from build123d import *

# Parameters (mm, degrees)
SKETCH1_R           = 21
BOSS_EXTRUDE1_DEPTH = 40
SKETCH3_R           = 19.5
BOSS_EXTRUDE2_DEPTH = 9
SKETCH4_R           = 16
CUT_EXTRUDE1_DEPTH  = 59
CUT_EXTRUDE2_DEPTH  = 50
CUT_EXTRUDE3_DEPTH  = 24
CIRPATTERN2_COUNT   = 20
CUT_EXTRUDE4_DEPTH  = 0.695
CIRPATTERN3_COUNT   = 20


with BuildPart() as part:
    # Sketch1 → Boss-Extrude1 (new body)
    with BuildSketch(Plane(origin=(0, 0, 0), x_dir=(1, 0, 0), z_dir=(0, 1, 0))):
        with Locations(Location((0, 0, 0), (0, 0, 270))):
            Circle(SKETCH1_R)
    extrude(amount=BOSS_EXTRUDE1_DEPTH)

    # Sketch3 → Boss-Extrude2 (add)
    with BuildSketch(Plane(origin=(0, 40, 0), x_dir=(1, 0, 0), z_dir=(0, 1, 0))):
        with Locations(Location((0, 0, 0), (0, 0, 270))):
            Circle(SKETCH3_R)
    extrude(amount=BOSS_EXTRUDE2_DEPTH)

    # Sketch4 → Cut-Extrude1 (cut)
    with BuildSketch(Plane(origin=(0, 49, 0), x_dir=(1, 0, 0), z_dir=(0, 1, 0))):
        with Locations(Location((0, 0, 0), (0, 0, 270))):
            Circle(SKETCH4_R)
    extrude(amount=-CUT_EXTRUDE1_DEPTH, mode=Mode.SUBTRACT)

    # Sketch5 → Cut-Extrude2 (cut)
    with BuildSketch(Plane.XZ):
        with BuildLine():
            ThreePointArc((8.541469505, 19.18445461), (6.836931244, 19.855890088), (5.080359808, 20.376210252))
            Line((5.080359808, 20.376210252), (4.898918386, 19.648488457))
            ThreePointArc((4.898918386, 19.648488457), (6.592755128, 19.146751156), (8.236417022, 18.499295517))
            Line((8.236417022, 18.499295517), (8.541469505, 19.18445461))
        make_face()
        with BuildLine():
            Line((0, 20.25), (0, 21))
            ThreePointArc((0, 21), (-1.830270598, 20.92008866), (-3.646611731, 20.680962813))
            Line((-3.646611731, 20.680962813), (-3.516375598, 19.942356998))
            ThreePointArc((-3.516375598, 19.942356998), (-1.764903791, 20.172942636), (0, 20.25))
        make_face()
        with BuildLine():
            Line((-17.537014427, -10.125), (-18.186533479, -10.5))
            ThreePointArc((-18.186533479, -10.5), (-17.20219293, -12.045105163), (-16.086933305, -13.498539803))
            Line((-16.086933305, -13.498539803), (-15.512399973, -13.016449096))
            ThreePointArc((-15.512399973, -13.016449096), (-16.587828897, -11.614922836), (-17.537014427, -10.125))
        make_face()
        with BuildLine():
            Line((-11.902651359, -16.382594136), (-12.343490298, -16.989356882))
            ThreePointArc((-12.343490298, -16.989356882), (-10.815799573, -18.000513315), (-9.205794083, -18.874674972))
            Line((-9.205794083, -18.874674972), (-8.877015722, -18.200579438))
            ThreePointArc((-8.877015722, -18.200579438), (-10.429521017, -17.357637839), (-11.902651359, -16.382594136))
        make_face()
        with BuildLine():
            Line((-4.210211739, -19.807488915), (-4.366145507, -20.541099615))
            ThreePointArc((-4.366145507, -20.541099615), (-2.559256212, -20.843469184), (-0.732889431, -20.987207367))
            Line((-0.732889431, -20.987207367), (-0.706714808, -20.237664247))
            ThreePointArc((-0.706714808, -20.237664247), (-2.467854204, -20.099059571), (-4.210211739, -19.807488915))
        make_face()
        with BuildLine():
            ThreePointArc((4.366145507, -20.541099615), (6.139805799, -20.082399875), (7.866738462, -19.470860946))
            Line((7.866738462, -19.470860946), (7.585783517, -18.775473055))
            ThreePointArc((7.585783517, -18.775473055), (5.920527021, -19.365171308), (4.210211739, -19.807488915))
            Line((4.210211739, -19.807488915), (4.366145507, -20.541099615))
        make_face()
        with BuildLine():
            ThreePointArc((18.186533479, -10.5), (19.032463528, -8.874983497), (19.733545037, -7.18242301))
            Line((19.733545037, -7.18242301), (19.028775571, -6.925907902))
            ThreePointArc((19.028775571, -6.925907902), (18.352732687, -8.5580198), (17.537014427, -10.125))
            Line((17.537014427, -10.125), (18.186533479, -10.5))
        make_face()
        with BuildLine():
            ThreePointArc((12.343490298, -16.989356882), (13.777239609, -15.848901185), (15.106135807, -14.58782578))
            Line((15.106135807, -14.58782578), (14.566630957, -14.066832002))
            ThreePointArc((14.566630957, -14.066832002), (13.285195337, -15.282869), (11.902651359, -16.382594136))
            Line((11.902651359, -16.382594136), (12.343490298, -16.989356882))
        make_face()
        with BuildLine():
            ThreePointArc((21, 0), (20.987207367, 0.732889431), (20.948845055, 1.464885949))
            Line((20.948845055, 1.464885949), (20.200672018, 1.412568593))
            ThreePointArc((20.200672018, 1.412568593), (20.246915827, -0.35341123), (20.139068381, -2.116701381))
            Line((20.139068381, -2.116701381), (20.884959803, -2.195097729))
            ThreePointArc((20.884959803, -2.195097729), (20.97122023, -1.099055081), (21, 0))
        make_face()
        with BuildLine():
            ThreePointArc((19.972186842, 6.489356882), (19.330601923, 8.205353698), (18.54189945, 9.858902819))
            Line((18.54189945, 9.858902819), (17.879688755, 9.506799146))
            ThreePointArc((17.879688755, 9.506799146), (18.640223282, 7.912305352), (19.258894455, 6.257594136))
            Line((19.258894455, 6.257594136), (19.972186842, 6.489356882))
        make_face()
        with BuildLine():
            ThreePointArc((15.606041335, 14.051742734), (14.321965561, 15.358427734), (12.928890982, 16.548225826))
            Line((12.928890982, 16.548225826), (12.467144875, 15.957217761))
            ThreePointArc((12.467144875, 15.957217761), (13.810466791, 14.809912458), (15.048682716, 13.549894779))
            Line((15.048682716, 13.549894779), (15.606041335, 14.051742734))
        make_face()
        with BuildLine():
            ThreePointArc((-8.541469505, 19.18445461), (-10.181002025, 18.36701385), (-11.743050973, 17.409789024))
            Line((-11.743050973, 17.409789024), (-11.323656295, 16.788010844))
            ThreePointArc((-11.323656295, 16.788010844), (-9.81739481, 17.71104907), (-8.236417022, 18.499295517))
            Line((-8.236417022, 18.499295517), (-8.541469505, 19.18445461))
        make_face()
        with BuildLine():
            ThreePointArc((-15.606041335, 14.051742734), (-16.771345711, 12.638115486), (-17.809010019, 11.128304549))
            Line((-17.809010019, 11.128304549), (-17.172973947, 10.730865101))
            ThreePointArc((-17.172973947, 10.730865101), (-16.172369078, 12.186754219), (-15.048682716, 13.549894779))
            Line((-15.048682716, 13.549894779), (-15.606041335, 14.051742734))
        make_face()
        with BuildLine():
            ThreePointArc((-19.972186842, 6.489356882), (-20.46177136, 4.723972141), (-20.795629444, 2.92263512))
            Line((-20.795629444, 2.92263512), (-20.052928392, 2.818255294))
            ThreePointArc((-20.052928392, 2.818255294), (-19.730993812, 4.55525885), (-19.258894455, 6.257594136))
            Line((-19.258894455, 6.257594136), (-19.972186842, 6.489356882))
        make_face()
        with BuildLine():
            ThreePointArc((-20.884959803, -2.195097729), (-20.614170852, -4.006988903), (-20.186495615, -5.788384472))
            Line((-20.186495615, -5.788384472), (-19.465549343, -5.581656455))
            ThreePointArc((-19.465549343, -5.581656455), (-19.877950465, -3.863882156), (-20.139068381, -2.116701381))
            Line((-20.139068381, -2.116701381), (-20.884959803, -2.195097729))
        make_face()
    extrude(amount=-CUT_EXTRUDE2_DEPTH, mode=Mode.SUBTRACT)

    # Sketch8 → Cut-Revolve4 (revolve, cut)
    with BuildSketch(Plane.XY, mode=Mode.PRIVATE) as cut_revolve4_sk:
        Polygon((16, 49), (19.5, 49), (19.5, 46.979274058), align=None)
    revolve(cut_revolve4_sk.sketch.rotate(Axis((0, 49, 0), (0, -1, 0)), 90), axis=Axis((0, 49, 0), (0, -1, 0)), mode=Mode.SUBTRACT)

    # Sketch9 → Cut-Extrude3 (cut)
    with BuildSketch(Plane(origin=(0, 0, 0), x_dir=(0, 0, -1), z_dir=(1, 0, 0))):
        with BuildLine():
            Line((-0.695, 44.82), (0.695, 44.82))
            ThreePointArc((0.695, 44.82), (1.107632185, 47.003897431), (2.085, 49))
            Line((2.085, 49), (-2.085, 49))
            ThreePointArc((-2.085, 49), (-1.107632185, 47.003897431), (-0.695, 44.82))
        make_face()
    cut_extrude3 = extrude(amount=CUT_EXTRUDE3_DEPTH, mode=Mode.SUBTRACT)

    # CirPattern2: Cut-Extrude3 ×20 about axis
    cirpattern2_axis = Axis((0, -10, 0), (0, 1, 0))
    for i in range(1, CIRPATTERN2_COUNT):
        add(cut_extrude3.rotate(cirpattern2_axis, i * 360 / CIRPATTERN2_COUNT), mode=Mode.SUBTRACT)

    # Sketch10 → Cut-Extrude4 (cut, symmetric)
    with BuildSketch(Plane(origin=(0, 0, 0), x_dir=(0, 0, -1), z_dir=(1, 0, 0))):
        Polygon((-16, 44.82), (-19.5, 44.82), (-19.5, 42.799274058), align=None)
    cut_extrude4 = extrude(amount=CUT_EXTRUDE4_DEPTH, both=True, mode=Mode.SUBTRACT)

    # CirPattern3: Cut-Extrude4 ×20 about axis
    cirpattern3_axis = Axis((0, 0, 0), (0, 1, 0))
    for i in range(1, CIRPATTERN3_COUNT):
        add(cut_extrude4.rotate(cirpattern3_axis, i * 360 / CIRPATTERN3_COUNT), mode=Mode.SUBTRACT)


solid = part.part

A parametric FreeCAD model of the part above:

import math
import FreeCAD as App
import Part
import Sketcher
from FreeCAD import Vector
Q = App.Units.Quantity


def add_polygon(sketch, points):
    """Adds a closed chain of lines whose ends are joined by coincident constraints."""
    first, n = sketch.GeometryCount, len(points)
    for a, b in zip(points, points[1:] + points[:1]):
        sketch.addGeometry(Part.LineSegment(App.Vector(*a, 0), App.Vector(*b, 0)), False)
    for i in range(n):
        sketch.addConstraint(Sketcher.Constraint("Coincident", first + i, 2, first + (i + 1) % n, 1))

doc = App.newDocument("Part")
body = doc.addObject("PartDesign::Body", "Body")

sketch1 = doc.addObject("Sketcher::SketchObject", "Sketch")
body.addObject(sketch1)
sketch1.AttachmentSupport = (doc.XZ_Plane, [""])
sketch1.MapMode = "FlatFace"
sketch1.addGeometry(Part.Circle(Vector(0, 0, 0), Vector(0, 0, 1), 21), False)
sketch1.addConstraint(Sketcher.Constraint("Coincident", 0, 3, -1, 1))
sketch1.addConstraint(Sketcher.Constraint("Diameter", 0, 42.0))
pad1 = doc.addObject("PartDesign::Pad", "Pad")
body.addObject(pad1)
pad1.Profile = sketch1
pad1.Length = 40
pad1.Reversed = True

sketch2 = doc.addObject("Sketcher::SketchObject", "Sketch001")
body.addObject(sketch2)
sketch2.AttachmentSupport = (doc.XZ_Plane, [""])
sketch2.MapMode = "FlatFace"
sketch2.AttachmentOffset = App.Placement(Vector(0, 0, -40), App.Rotation())
sketch2.addGeometry(Part.Circle(Vector(0, 0, 0), Vector(0, 0, 1), 19.5), False)
sketch2.addConstraint(Sketcher.Constraint("Coincident", 0, 3, -1, 1))
sketch2.addConstraint(Sketcher.Constraint("Diameter", 0, 39.0))
pad2 = doc.addObject("PartDesign::Pad", "Pad001")
body.addObject(pad2)
pad2.Profile = sketch2
pad2.Length = 9
pad2.Reversed = True

sketch3 = doc.addObject("Sketcher::SketchObject", "Sketch002")
body.addObject(sketch3)
sketch3.AttachmentSupport = (doc.XZ_Plane, [""])
sketch3.MapMode = "FlatFace"
sketch3.AttachmentOffset = App.Placement(Vector(0, 0, -49), App.Rotation())
sketch3.addGeometry(Part.Circle(Vector(0, 0, 0), Vector(0, 0, 1), 16), False)
sketch3.addConstraint(Sketcher.Constraint("Coincident", 0, 3, -1, 1))
sketch3.addConstraint(Sketcher.Constraint("Diameter", 0, 32.0))
pocket1 = doc.addObject("PartDesign::Pocket", "Pocket")
body.addObject(pocket1)
pocket1.Profile = sketch3
pocket1.Length = 59
pocket1.Reversed = True

sketch4 = doc.addObject("Sketcher::SketchObject", "Sketch003")
body.addObject(sketch4)
sketch4.AttachmentSupport = (doc.XZ_Plane, [""])
sketch4.MapMode = "FlatFace"
sketch4.addGeometry(Part.ArcOfCircle(Part.Circle(Vector(0, 0, 0), Vector(0, 0, 1), 21), math.radians(66), math.radians(76)), False)
sketch4.addGeometry(Part.LineSegment(Vector(5.08036, 20.37621, 0), Vector(4.898918, 19.648488, 0)), False)
sketch4.addGeometry(Part.ArcOfCircle(Part.Circle(Vector(0, 0, 0), Vector(0, 0, 1), 20.25), math.radians(66), math.radians(76)), False)
sketch4.addGeometry(Part.LineSegment(Vector(8.236417, 18.499296, 0), Vector(8.54147, 19.184455, 0)), False)
sketch4.addGeometry(Part.LineSegment(Vector(0, 20.25, 0), Vector(0, 21, 0)), False)
sketch4.addGeometry(Part.ArcOfCircle(Part.Circle(Vector(0, 0, 0), Vector(0, 0, 1), 21), math.radians(90), math.radians(100)), False)
sketch4.addGeometry(Part.LineSegment(Vector(-3.646612, 20.680963, 0), Vector(-3.516376, 19.942357, 0)), False)
sketch4.addGeometry(Part.ArcOfCircle(Part.Circle(Vector(0, 0, 0), Vector(0, 0, 1), 20.25), math.radians(90), math.radians(100)), False)
sketch4.addGeometry(Part.LineSegment(Vector(-17.537014, -10.125, 0), Vector(-18.186533, -10.5, 0)), False)
sketch4.addGeometry(Part.ArcOfCircle(Part.Circle(Vector(0, 0, 0), Vector(0, 0, 1), 21), math.radians(-150), math.radians(-140)), False)
sketch4.addGeometry(Part.LineSegment(Vector(-16.086933, -13.49854, 0), Vector(-15.5124, -13.016449, 0)), False)
sketch4.addGeometry(Part.ArcOfCircle(Part.Circle(Vector(0, 0, 0), Vector(0, 0, 1), 20.25), math.radians(-150), math.radians(-140)), False)
sketch4.addGeometry(Part.LineSegment(Vector(-11.902651, -16.382594, 0), Vector(-12.34349, -16.989357, 0)), False)
sketch4.addGeometry(Part.ArcOfCircle(Part.Circle(Vector(0, 0, 0), Vector(0, 0, 1), 21), math.radians(-126), math.radians(-116)), False)
sketch4.addGeometry(Part.LineSegment(Vector(-9.205794, -18.874675, 0), Vector(-8.877016, -18.200579, 0)), False)
sketch4.addGeometry(Part.ArcOfCircle(Part.Circle(Vector(0, 0, 0), Vector(0, 0, 1), 20.25), math.radians(-126), math.radians(-116)), False)
sketch4.addGeometry(Part.LineSegment(Vector(-4.210212, -19.807489, 0), Vector(-4.366146, -20.5411, 0)), False)
sketch4.addGeometry(Part.ArcOfCircle(Part.Circle(Vector(0, 0, 0), Vector(0, 0, 1), 21), math.radians(-102), math.radians(-92)), False)
sketch4.addGeometry(Part.LineSegment(Vector(-0.732889, -20.987207, 0), Vector(-0.706715, -20.237664, 0)), False)
sketch4.addGeometry(Part.ArcOfCircle(Part.Circle(Vector(0, 0, 0), Vector(0, 0, 1), 20.25), math.radians(-102), math.radians(-92)), False)
sketch4.addGeometry(Part.ArcOfCircle(Part.Circle(Vector(0, 0, 0), Vector(0, 0, 1), 21), math.radians(-78), math.radians(-68)), False)
sketch4.addGeometry(Part.LineSegment(Vector(7.866738, -19.470861, 0), Vector(7.585784, -18.775473, 0)), False)
sketch4.addGeometry(Part.ArcOfCircle(Part.Circle(Vector(0, 0, 0), Vector(0, 0, 1), 20.25), math.radians(-78), math.radians(-68)), False)
sketch4.addGeometry(Part.LineSegment(Vector(4.210212, -19.807489, 0), Vector(4.366146, -20.5411, 0)), False)
sketch4.addGeometry(Part.ArcOfCircle(Part.Circle(Vector(0, 0, 0), Vector(0, 0, 1), 21), math.radians(-30), math.radians(-20)), False)
sketch4.addGeometry(Part.LineSegment(Vector(19.733545, -7.182423, 0), Vector(19.028776, -6.925908, 0)), False)
sketch4.addGeometry(Part.ArcOfCircle(Part.Circle(Vector(0, 0, 0), Vector(0, 0, 1), 20.25), math.radians(-30), math.radians(-20)), False)
sketch4.addGeometry(Part.LineSegment(Vector(17.537014, -10.125, 0), Vector(18.186533, -10.5, 0)), False)
sketch4.addGeometry(Part.ArcOfCircle(Part.Circle(Vector(0, 0, 0), Vector(0, 0, 1), 21), math.radians(-54), math.radians(-44)), False)
sketch4.addGeometry(Part.LineSegment(Vector(15.106136, -14.587826, 0), Vector(14.566631, -14.066832, 0)), False)
sketch4.addGeometry(Part.ArcOfCircle(Part.Circle(Vector(0, 0, 0), Vector(0, 0, 1), 20.25), math.radians(-54), math.radians(-44)), False)
sketch4.addGeometry(Part.LineSegment(Vector(11.902651, -16.382594, 0), Vector(12.34349, -16.989357, 0)), False)
sketch4.addGeometry(Part.ArcOfCircle(Part.Circle(Vector(0, 0, 0), Vector(0, 0, 1), 21), math.radians(0), math.radians(4)), False)
sketch4.addGeometry(Part.LineSegment(Vector(20.948845, 1.464886, 0), Vector(20.200672, 1.412569, 0)), False)
sketch4.addGeometry(Part.ArcOfCircle(Part.Circle(Vector(0, 0, 0), Vector(0, 0, 1), 20.25), math.radians(-6), math.radians(4)), False)
sketch4.addGeometry(Part.LineSegment(Vector(20.139068, -2.116701, 0), Vector(20.88496, -2.195098, 0)), False)
sketch4.addGeometry(Part.ArcOfCircle(Part.Circle(Vector(0, 0, 0), Vector(0, 0, 1), 21), math.radians(-6), math.radians(0)), False)
sketch4.addGeometry(Part.ArcOfCircle(Part.Circle(Vector(0, 0, 0), Vector(0, 0, 1), 21), math.radians(18), math.radians(28)), False)
sketch4.addGeometry(Part.LineSegment(Vector(18.541899, 9.858903, 0), Vector(17.879689, 9.506799, 0)), False)
sketch4.addGeometry(Part.ArcOfCircle(Part.Circle(Vector(0, 0, 0), Vector(0, 0, 1), 20.25), math.radians(18), math.radians(28)), False)
sketch4.addGeometry(Part.LineSegment(Vector(19.258894, 6.257594, 0), Vector(19.972187, 6.489357, 0)), False)
sketch4.addGeometry(Part.ArcOfCircle(Part.Circle(Vector(0, 0, 0), Vector(0, 0, 1), 21), math.radians(42), math.radians(52)), False)
sketch4.addGeometry(Part.LineSegment(Vector(12.928891, 16.548226, 0), Vector(12.467145, 15.957218, 0)), False)
sketch4.addGeometry(Part.ArcOfCircle(Part.Circle(Vector(0, 0, 0), Vector(0, 0, 1), 20.25), math.radians(42), math.radians(52)), False)
sketch4.addGeometry(Part.LineSegment(Vector(15.048683, 13.549895, 0), Vector(15.606041, 14.051743, 0)), False)
sketch4.addGeometry(Part.ArcOfCircle(Part.Circle(Vector(0, 0, 0), Vector(0, 0, 1), 21), math.radians(114), math.radians(124)), False)
sketch4.addGeometry(Part.LineSegment(Vector(-11.743051, 17.409789, 0), Vector(-11.323656, 16.788011, 0)), False)
sketch4.addGeometry(Part.ArcOfCircle(Part.Circle(Vector(0, 0, 0), Vector(0, 0, 1), 20.25), math.radians(114), math.radians(124)), False)
sketch4.addGeometry(Part.LineSegment(Vector(-8.236417, 18.499296, 0), Vector(-8.54147, 19.184455, 0)), False)
sketch4.addGeometry(Part.ArcOfCircle(Part.Circle(Vector(0, 0, 0), Vector(0, 0, 1), 21), math.radians(138), math.radians(148)), False)
sketch4.addGeometry(Part.LineSegment(Vector(-17.80901, 11.128305, 0), Vector(-17.172974, 10.730865, 0)), False)
sketch4.addGeometry(Part.ArcOfCircle(Part.Circle(Vector(0, 0, 0), Vector(0, 0, 1), 20.25), math.radians(138), math.radians(148)), False)
sketch4.addGeometry(Part.LineSegment(Vector(-15.048683, 13.549895, 0), Vector(-15.606041, 14.051743, 0)), False)
sketch4.addGeometry(Part.ArcOfCircle(Part.Circle(Vector(0, 0, 0), Vector(0, 0, 1), 21), math.radians(162), math.radians(172)), False)
sketch4.addGeometry(Part.LineSegment(Vector(-20.795629, 2.922635, 0), Vector(-20.052928, 2.818255, 0)), False)
sketch4.addGeometry(Part.ArcOfCircle(Part.Circle(Vector(0, 0, 0), Vector(0, 0, 1), 20.25), math.radians(162), math.radians(172)), False)
sketch4.addGeometry(Part.LineSegment(Vector(-19.258894, 6.257594, 0), Vector(-19.972187, 6.489357, 0)), False)
sketch4.addGeometry(Part.ArcOfCircle(Part.Circle(Vector(0, 0, 0), Vector(0, 0, 1), 21), math.radians(-174), math.radians(-164)), False)
sketch4.addGeometry(Part.LineSegment(Vector(-20.186496, -5.788384, 0), Vector(-19.465549, -5.581656, 0)), False)
sketch4.addGeometry(Part.ArcOfCircle(Part.Circle(Vector(0, 0, 0), Vector(0, 0, 1), 20.25), math.radians(-174), math.radians(-164)), False)
sketch4.addGeometry(Part.LineSegment(Vector(-20.139068, -2.116701, 0), Vector(-20.88496, -2.195098, 0)), False)
sketch4.addConstraint(Sketcher.Constraint("Coincident", 0, 2, 1, 1))
sketch4.addConstraint(Sketcher.Constraint("Coincident", 1, 2, 2, 2))
sketch4.addConstraint(Sketcher.Constraint("Coincident", 2, 1, 3, 1))
sketch4.addConstraint(Sketcher.Constraint("Coincident", 3, 2, 0, 1))
sketch4.addConstraint(Sketcher.Constraint("Coincident", 4, 2, 5, 1))
sketch4.addConstraint(Sketcher.Constraint("Coincident", 5, 2, 6, 1))
sketch4.addConstraint(Sketcher.Constraint("Coincident", 6, 2, 7, 2))
sketch4.addConstraint(Sketcher.Constraint("Coincident", 7, 1, 4, 1))
sketch4.addConstraint(Sketcher.Constraint("Coincident", 8, 2, 9, 1))
sketch4.addConstraint(Sketcher.Constraint("Coincident", 9, 2, 10, 1))
sketch4.addConstraint(Sketcher.Constraint("Coincident", 10, 2, 11, 2))
sketch4.addConstraint(Sketcher.Constraint("Coincident", 11, 1, 8, 1))
sketch4.addConstraint(Sketcher.Constraint("Coincident", 12, 2, 13, 1))
sketch4.addConstraint(Sketcher.Constraint("Coincident", 13, 2, 14, 1))
sketch4.addConstraint(Sketcher.Constraint("Coincident", 14, 2, 15, 2))
sketch4.addConstraint(Sketcher.Constraint("Coincident", 15, 1, 12, 1))
sketch4.addConstraint(Sketcher.Constraint("Coincident", 16, 2, 17, 1))
sketch4.addConstraint(Sketcher.Constraint("Coincident", 17, 2, 18, 1))
sketch4.addConstraint(Sketcher.Constraint("Coincident", 18, 2, 19, 2))
sketch4.addConstraint(Sketcher.Constraint("Coincident", 19, 1, 16, 1))
sketch4.addConstraint(Sketcher.Constraint("Coincident", 20, 2, 21, 1))
sketch4.addConstraint(Sketcher.Constraint("Coincident", 21, 2, 22, 2))
sketch4.addConstraint(Sketcher.Constraint("Coincident", 22, 1, 23, 1))
sketch4.addConstraint(Sketcher.Constraint("Coincident", 23, 2, 20, 1))
sketch4.addConstraint(Sketcher.Constraint("Coincident", 24, 2, 25, 1))
sketch4.addConstraint(Sketcher.Constraint("Coincident", 25, 2, 26, 2))
sketch4.addConstraint(Sketcher.Constraint("Coincident", 26, 1, 27, 1))
sketch4.addConstraint(Sketcher.Constraint("Coincident", 27, 2, 24, 1))
sketch4.addConstraint(Sketcher.Constraint("Coincident", 28, 2, 29, 1))
sketch4.addConstraint(Sketcher.Constraint("Coincident", 29, 2, 30, 2))
sketch4.addConstraint(Sketcher.Constraint("Coincident", 30, 1, 31, 1))
sketch4.addConstraint(Sketcher.Constraint("Coincident", 31, 2, 28, 1))
sketch4.addConstraint(Sketcher.Constraint("Coincident", 32, 2, 33, 1))
sketch4.addConstraint(Sketcher.Constraint("Coincident", 33, 2, 34, 2))
sketch4.addConstraint(Sketcher.Constraint("Coincident", 34, 1, 35, 1))
sketch4.addConstraint(Sketcher.Constraint("Coincident", 35, 2, 36, 1))
sketch4.addConstraint(Sketcher.Constraint("Tangent", 36, 2, 32, 1))
sketch4.addConstraint(Sketcher.Constraint("Coincident", 37, 2, 38, 1))
sketch4.addConstraint(Sketcher.Constraint("Coincident", 38, 2, 39, 2))
sketch4.addConstraint(Sketcher.Constraint("Coincident", 39, 1, 40, 1))
sketch4.addConstraint(Sketcher.Constraint("Coincident", 40, 2, 37, 1))
sketch4.addConstraint(Sketcher.Constraint("Coincident", 41, 2, 42, 1))
sketch4.addConstraint(Sketcher.Constraint("Coincident", 42, 2, 43, 2))
sketch4.addConstraint(Sketcher.Constraint("Coincident", 43, 1, 44, 1))
sketch4.addConstraint(Sketcher.Constraint("Coincident", 44, 2, 41, 1))
sketch4.addConstraint(Sketcher.Constraint("Coincident", 45, 2, 46, 1))
sketch4.addConstraint(Sketcher.Constraint("Coincident", 46, 2, 47, 2))
sketch4.addConstraint(Sketcher.Constraint("Coincident", 47, 1, 48, 1))
sketch4.addConstraint(Sketcher.Constraint("Coincident", 48, 2, 45, 1))
sketch4.addConstraint(Sketcher.Constraint("Coincident", 49, 2, 50, 1))
sketch4.addConstraint(Sketcher.Constraint("Coincident", 50, 2, 51, 2))
sketch4.addConstraint(Sketcher.Constraint("Coincident", 51, 1, 52, 1))
sketch4.addConstraint(Sketcher.Constraint("Coincident", 52, 2, 49, 1))
sketch4.addConstraint(Sketcher.Constraint("Coincident", 53, 2, 54, 1))
sketch4.addConstraint(Sketcher.Constraint("Coincident", 54, 2, 55, 2))
sketch4.addConstraint(Sketcher.Constraint("Coincident", 55, 1, 56, 1))
sketch4.addConstraint(Sketcher.Constraint("Coincident", 56, 2, 53, 1))
sketch4.addConstraint(Sketcher.Constraint("Coincident", 57, 2, 58, 1))
sketch4.addConstraint(Sketcher.Constraint("Coincident", 58, 2, 59, 2))
sketch4.addConstraint(Sketcher.Constraint("Coincident", 59, 1, 60, 1))
sketch4.addConstraint(Sketcher.Constraint("Coincident", 60, 2, 57, 1))
sketch4.addConstraint(Sketcher.Constraint("Vertical", 4))
sketch4.addConstraint(Sketcher.Constraint("Coincident", 0, 3, -1, 1))
sketch4.addConstraint(Sketcher.Constraint("Coincident", 2, 3, -1, 1))
sketch4.addConstraint(Sketcher.Constraint("Coincident", 5, 3, -1, 1))
sketch4.addConstraint(Sketcher.Constraint("Coincident", 7, 3, -1, 1))
sketch4.addConstraint(Sketcher.Constraint("Coincident", 9, 3, -1, 1))
sketch4.addConstraint(Sketcher.Constraint("Coincident", 11, 3, -1, 1))
sketch4.addConstraint(Sketcher.Constraint("Coincident", 13, 3, -1, 1))
sketch4.addConstraint(Sketcher.Constraint("Coincident", 15, 3, -1, 1))
sketch4.addConstraint(Sketcher.Constraint("Coincident", 17, 3, -1, 1))
sketch4.addConstraint(Sketcher.Constraint("Coincident", 19, 3, -1, 1))
sketch4.addConstraint(Sketcher.Constraint("Coincident", 20, 3, -1, 1))
sketch4.addConstraint(Sketcher.Constraint("Coincident", 22, 3, -1, 1))
sketch4.addConstraint(Sketcher.Constraint("Coincident", 24, 3, -1, 1))
sketch4.addConstraint(Sketcher.Constraint("Coincident", 26, 3, -1, 1))
sketch4.addConstraint(Sketcher.Constraint("Coincident", 28, 3, -1, 1))
sketch4.addConstraint(Sketcher.Constraint("Coincident", 30, 3, -1, 1))
sketch4.addConstraint(Sketcher.Constraint("Coincident", 32, 3, -1, 1))
sketch4.addConstraint(Sketcher.Constraint("Coincident", 34, 3, -1, 1))
sketch4.addConstraint(Sketcher.Constraint("Coincident", 37, 3, -1, 1))
sketch4.addConstraint(Sketcher.Constraint("Coincident", 39, 3, -1, 1))
sketch4.addConstraint(Sketcher.Constraint("Coincident", 41, 3, -1, 1))
sketch4.addConstraint(Sketcher.Constraint("Coincident", 43, 3, -1, 1))
sketch4.addConstraint(Sketcher.Constraint("Coincident", 45, 3, -1, 1))
sketch4.addConstraint(Sketcher.Constraint("Coincident", 47, 3, -1, 1))
sketch4.addConstraint(Sketcher.Constraint("Coincident", 49, 3, -1, 1))
sketch4.addConstraint(Sketcher.Constraint("Coincident", 51, 3, -1, 1))
sketch4.addConstraint(Sketcher.Constraint("Coincident", 53, 3, -1, 1))
sketch4.addConstraint(Sketcher.Constraint("Coincident", 55, 3, -1, 1))
sketch4.addConstraint(Sketcher.Constraint("Coincident", 57, 3, -1, 1))
sketch4.addConstraint(Sketcher.Constraint("Coincident", 59, 3, -1, 1))
sketch4.addConstraint(Sketcher.Constraint("Equal", 0, 5))
sketch4.addConstraint(Sketcher.Constraint("Equal", 2, 7))
sketch4.addConstraint(Sketcher.Constraint("Equal", 5, 9))
sketch4.addConstraint(Sketcher.Constraint("Equal", 7, 11))
sketch4.addConstraint(Sketcher.Constraint("Equal", 9, 13))
sketch4.addConstraint(Sketcher.Constraint("Equal", 11, 15))
sketch4.addConstraint(Sketcher.Constraint("Equal", 13, 17))
sketch4.addConstraint(Sketcher.Constraint("Equal", 15, 19))
sketch4.addConstraint(Sketcher.Constraint("Equal", 17, 20))
sketch4.addConstraint(Sketcher.Constraint("Equal", 19, 22))
sketch4.addConstraint(Sketcher.Constraint("Equal", 20, 24))
sketch4.addConstraint(Sketcher.Constraint("Equal", 22, 26))
sketch4.addConstraint(Sketcher.Constraint("Equal", 24, 28))
sketch4.addConstraint(Sketcher.Constraint("Equal", 26, 30))
sketch4.addConstraint(Sketcher.Constraint("Equal", 28, 32))
sketch4.addConstraint(Sketcher.Constraint("Equal", 30, 34))
sketch4.addConstraint(Sketcher.Constraint("Equal", 32, 36))
sketch4.addConstraint(Sketcher.Constraint("Equal", 36, 37))
sketch4.addConstraint(Sketcher.Constraint("Equal", 34, 39))
sketch4.addConstraint(Sketcher.Constraint("Equal", 37, 41))
sketch4.addConstraint(Sketcher.Constraint("Equal", 39, 43))
sketch4.addConstraint(Sketcher.Constraint("Equal", 41, 45))
sketch4.addConstraint(Sketcher.Constraint("Equal", 43, 47))
sketch4.addConstraint(Sketcher.Constraint("Equal", 45, 49))
sketch4.addConstraint(Sketcher.Constraint("Equal", 47, 51))
sketch4.addConstraint(Sketcher.Constraint("Equal", 49, 53))
sketch4.addConstraint(Sketcher.Constraint("Equal", 51, 55))
sketch4.addConstraint(Sketcher.Constraint("Equal", 53, 57))
sketch4.addConstraint(Sketcher.Constraint("Equal", 55, 59))
sketch4.addConstraint(Sketcher.Constraint("PointOnObject", 4, 2, -2))
sketch4.addConstraint(Sketcher.Constraint("PointOnObject", 36, 2, -1))
sketch4.addConstraint(Sketcher.Constraint("Horizontal", 19, 1, 22, 1))
sketch4.addConstraint(Sketcher.Constraint("Horizontal", 16, 2, 23, 2))
sketch4.addConstraint(Sketcher.Constraint("Horizontal", 11, 1, 26, 1))
sketch4.addConstraint(Sketcher.Constraint("Horizontal", 8, 2, 27, 2))
sketch4.addConstraint(Sketcher.Constraint("Horizontal", 15, 1, 30, 1))
sketch4.addConstraint(Sketcher.Constraint("Horizontal", 12, 2, 31, 2))
sketch4.addConstraint(Sketcher.Constraint("Horizontal", 2, 1, 47, 1))
sketch4.addConstraint(Sketcher.Constraint("Horizontal", 3, 2, 48, 2))
sketch4.addConstraint(Sketcher.Constraint("Horizontal", 43, 1, 51, 1))
sketch4.addConstraint(Sketcher.Constraint("Horizontal", 44, 2, 52, 2))
sketch4.addConstraint(Sketcher.Constraint("Horizontal", 39, 1, 55, 1))
sketch4.addConstraint(Sketcher.Constraint("Horizontal", 40, 2, 56, 2))
sketch4.addConstraint(Sketcher.Constraint("Horizontal", 34, 1, 59, 1))
sketch4.addConstraint(Sketcher.Constraint("Horizontal", 35, 2, 60, 2))
sketch4.addConstraint(Sketcher.Constraint("Radius", 0, 21.0))
sketch4.addConstraint(Sketcher.Constraint("Angle", 1, Q("-104 deg")))
sketch4.addConstraint(Sketcher.Constraint("Angle", 3, Q("66 deg")))
sketch4.addConstraint(Sketcher.Constraint("Angle", 6, Q("-80 deg")))
sketch4.addConstraint(Sketcher.Constraint("Angle", 8, Q("-150 deg")))
sketch4.addConstraint(Sketcher.Constraint("Angle", 10, Q("40 deg")))
sketch4.addConstraint(Sketcher.Constraint("Angle", 12, Q("-126 deg")))
sketch4.addConstraint(Sketcher.Constraint("Angle", 14, Q("64 deg")))
sketch4.addConstraint(Sketcher.Constraint("Angle", 16, Q("-102 deg")))
sketch4.addConstraint(Sketcher.Constraint("Angle", 18, Q("88 deg")))
sketch4.addConstraint(Sketcher.Constraint("Angle", 21, Q("112 deg")))
sketch4.addConstraint(Sketcher.Constraint("Angle", 25, Q("160 deg")))
sketch4.addConstraint(Sketcher.Constraint("Angle", 29, Q("136 deg")))
sketch4.addConstraint(Sketcher.Constraint("Angle", 33, Q("-176 deg")))
sketch4.addConstraint(Sketcher.Constraint("Angle", 35, Q("-6 deg")))
sketch4.addConstraint(Sketcher.Constraint("Angle", 38, Q("-152 deg")))
sketch4.addConstraint(Sketcher.Constraint("Angle", 40, Q("18 deg")))
sketch4.addConstraint(Sketcher.Constraint("Angle", 42, Q("-128 deg")))
sketch4.addConstraint(Sketcher.Constraint("Angle", 44, Q("42 deg")))
sketch4.addConstraint(Sketcher.Constraint("Angle", 46, Q("-56 deg")))
sketch4.addConstraint(Sketcher.Constraint("Angle", 50, Q("-32 deg")))
sketch4.addConstraint(Sketcher.Constraint("Angle", 54, Q("-8 deg")))
sketch4.addConstraint(Sketcher.Constraint("Angle", 58, Q("16 deg")))
sketch4.addConstraint(Sketcher.Constraint("Radius", 2, 20.25))
sketch4.addConstraint(Sketcher.Constraint("DistanceY", 8, 2, -1, 1, 10.5))
sketch4.addConstraint(Sketcher.Constraint("DistanceX", 10, 2, -1, 1, 15.5124))
sketch4.addConstraint(Sketcher.Constraint("DistanceY", 16, 2, -1, 1, 20.5411))
sketch4.addConstraint(Sketcher.Constraint("DistanceY", 34, 1, -1, 1, 2.116701))
sketch4.addConstraint(Sketcher.Constraint("DistanceX", -1, 1, 37, 2, 18.541899))
sketch4.addConstraint(Sketcher.Constraint("DistanceX", -1, 1, 0, 2, 5.08036))
sketch4.addConstraint(Sketcher.Constraint("DistanceX", -1, 1, 3, 2, 8.54147))
sketch4.addConstraint(Sketcher.Constraint("DistanceX", 5, 2, -1, 1, 3.646612))
sketch4.addConstraint(Sketcher.Constraint("DistanceX", 12, 2, -1, 1, 12.34349))
sketch4.addConstraint(Sketcher.Constraint("DistanceY", 14, 2, -1, 1, 18.200579))
sketch4.addConstraint(Sketcher.Constraint("DistanceX", 17, 2, -1, 1, 0.732889))
sketch4.addConstraint(Sketcher.Constraint("DistanceX", -1, 1, 20, 2, 7.866738))
sketch4.addConstraint(Sketcher.Constraint("DistanceX", -1, 1, 29, 2, 14.566631))
sketch4.addConstraint(Sketcher.Constraint("DistanceY", -1, 1, 33, 2, 1.412569))
sketch4.addConstraint(Sketcher.Constraint("DistanceX", -1, 1, 41, 2, 12.928891))
sketch4.addConstraint(Sketcher.Constraint("DistanceX", -1, 1, 44, 2, 15.606041))
sketch4.addConstraint(Sketcher.Constraint("DistanceX", 45, 2, -1, 1, 11.743051))
sketch4.addConstraint(Sketcher.Constraint("DistanceX", 49, 2, -1, 1, 17.80901))
sketch4.addConstraint(Sketcher.Constraint("DistanceX", 53, 2, -1, 1, 20.795629))
sketch4.addConstraint(Sketcher.Constraint("DistanceX", 58, 2, -1, 1, 19.465549))
sketch4.addConstraint(Sketcher.Constraint("DistanceX", -1, 1, 24, 2, 19.733545))
sketch4.addConstraint(Sketcher.Constraint("DistanceX", -1, 1, 39, 1, 19.258894))
pocket2 = doc.addObject("PartDesign::Pocket", "Pocket001")
body.addObject(pocket2)
pocket2.Profile = sketch4
pocket2.Length = 50

sketch5 = doc.addObject("Sketcher::SketchObject", "Sketch004")
body.addObject(sketch5)
sketch5.AttachmentSupport = (doc.XY_Plane, [""])
sketch5.MapMode = "FlatFace"
add_polygon(sketch5, [(19.5, 49), (16, 49), (19.5, 46.979274)])
sketch5.addConstraint(Sketcher.Constraint("Horizontal", 0))
sketch5.addConstraint(Sketcher.Constraint("Vertical", 2))
sketch5.addConstraint(Sketcher.Constraint("Angle", 1, Q("-30 deg")))
sketch5.addConstraint(Sketcher.Constraint("DistanceX", 0, 2, 0, 1, 3.5))
sketch5.addConstraint(Sketcher.Constraint("DistanceX", -1, 1, 0, 2, 16.0))
sketch5.addConstraint(Sketcher.Constraint("DistanceY", -1, 1, 0, 2, 49.0))
groove = doc.addObject("PartDesign::Groove", "Groove")
body.addObject(groove)
groove.Profile = sketch5
groove.ReferenceAxis = (sketch5, ["V_Axis"])
groove.Angle = 360

sketch6 = doc.addObject("Sketcher::SketchObject", "Sketch005")
body.addObject(sketch6)
sketch6.AttachmentSupport = (doc.YZ_Plane, [""])
sketch6.MapMode = "FlatFace"
sketch6.addGeometry(Part.LineSegment(Vector(44.82, 0.695, 0), Vector(44.82, -0.695, 0)), False)
sketch6.addGeometry(Part.ArcOfCircle(Part.Circle(Vector(44.38486, -8.983586, 0), Vector(0, 0, 1), 8.3), math.radians(56.217558), math.radians(86.994806)), False)
sketch6.addGeometry(Part.LineSegment(Vector(49, -2.085, 0), Vector(49, 2.085, 0)), False)
sketch6.addGeometry(Part.ArcOfCircle(Part.Circle(Vector(44.38486, 8.983586, 0), Vector(0, 0, 1), 8.3), math.radians(-86.994806), math.radians(-56.217558)), False)
sketch6.addConstraint(Sketcher.Constraint("Coincident", 0, 2, 1, 2))
sketch6.addConstraint(Sketcher.Constraint("Coincident", 1, 1, 2, 1))
sketch6.addConstraint(Sketcher.Constraint("Coincident", 2, 2, 3, 2))
sketch6.addConstraint(Sketcher.Constraint("Coincident", 3, 1, 0, 1))
sketch6.addConstraint(Sketcher.Constraint("Vertical", 0))
sketch6.addConstraint(Sketcher.Constraint("Vertical", 2))
sketch6.addConstraint(Sketcher.Constraint("Equal", 1, 3))
sketch6.addConstraint(Sketcher.Constraint("Symmetric", 1, 3, 3, 3, -1))
sketch6.addConstraint(Sketcher.Constraint("Radius", 1, 8.3))
sketch6.addConstraint(Sketcher.Constraint("DistanceX", -1, 1, 1, 1, 49.0))
sketch6.addConstraint(Sketcher.Constraint("DistanceY", 0, 2, 0, 1, 1.39))
sketch6.addConstraint(Sketcher.Constraint("DistanceY", 2, 1, 2, 2, 4.17))
sketch6.addConstraint(Sketcher.Constraint("DistanceX", -1, 1, 0, 2, 44.82))
pocket3 = doc.addObject("PartDesign::Pocket", "Pocket002")
body.addObject(pocket3)
pocket3.Profile = sketch6
pocket3.Length = 24
pocket3.Reversed = True
doc.recompute()

polarpattern = doc.addObject("PartDesign::PolarPattern", "PolarPattern")
body.addObject(polarpattern)
polarpattern.Originals = [pocket3]
polarpattern.Axis = (doc.Y_Axis, [""])
polarpattern.Angle = 360
polarpattern.Occurrences = 20
body.Tip = polarpattern

sketch7 = doc.addObject("Sketcher::SketchObject", "Sketch006")
body.addObject(sketch7)
sketch7.AttachmentSupport = (doc.YZ_Plane, [""])
sketch7.MapMode = "FlatFace"
add_polygon(sketch7, [(44.82, 16), (44.82, 19.5), (42.799274, 19.5)])
sketch7.addConstraint(Sketcher.Constraint("Vertical", 0))
sketch7.addConstraint(Sketcher.Constraint("Horizontal", 1))
sketch7.addConstraint(Sketcher.Constraint("Angle", 2, Q("-60 deg")))
sketch7.addConstraint(Sketcher.Constraint("DistanceY", 0, 1, 0, 2, 3.5))
sketch7.addConstraint(Sketcher.Constraint("DistanceY", -1, 1, 2, 2, 16.0))
sketch7.addConstraint(Sketcher.Constraint("DistanceX", -1, 1, 0, 2, 44.82))
pocket4 = doc.addObject("PartDesign::Pocket", "Pocket003")
body.addObject(pocket4)
pocket4.Profile = sketch7
pocket4.Length = 1.39
pocket4.Midplane = True
doc.recompute()

polarpattern2 = doc.addObject("PartDesign::PolarPattern", "PolarPattern001")
body.addObject(polarpattern2)
polarpattern2.Originals = [pocket4]
polarpattern2.Axis = (doc.Y_Axis, [""])
polarpattern2.Angle = 360
polarpattern2.Occurrences = 20
body.Tip = polarpattern2

doc.recompute()
